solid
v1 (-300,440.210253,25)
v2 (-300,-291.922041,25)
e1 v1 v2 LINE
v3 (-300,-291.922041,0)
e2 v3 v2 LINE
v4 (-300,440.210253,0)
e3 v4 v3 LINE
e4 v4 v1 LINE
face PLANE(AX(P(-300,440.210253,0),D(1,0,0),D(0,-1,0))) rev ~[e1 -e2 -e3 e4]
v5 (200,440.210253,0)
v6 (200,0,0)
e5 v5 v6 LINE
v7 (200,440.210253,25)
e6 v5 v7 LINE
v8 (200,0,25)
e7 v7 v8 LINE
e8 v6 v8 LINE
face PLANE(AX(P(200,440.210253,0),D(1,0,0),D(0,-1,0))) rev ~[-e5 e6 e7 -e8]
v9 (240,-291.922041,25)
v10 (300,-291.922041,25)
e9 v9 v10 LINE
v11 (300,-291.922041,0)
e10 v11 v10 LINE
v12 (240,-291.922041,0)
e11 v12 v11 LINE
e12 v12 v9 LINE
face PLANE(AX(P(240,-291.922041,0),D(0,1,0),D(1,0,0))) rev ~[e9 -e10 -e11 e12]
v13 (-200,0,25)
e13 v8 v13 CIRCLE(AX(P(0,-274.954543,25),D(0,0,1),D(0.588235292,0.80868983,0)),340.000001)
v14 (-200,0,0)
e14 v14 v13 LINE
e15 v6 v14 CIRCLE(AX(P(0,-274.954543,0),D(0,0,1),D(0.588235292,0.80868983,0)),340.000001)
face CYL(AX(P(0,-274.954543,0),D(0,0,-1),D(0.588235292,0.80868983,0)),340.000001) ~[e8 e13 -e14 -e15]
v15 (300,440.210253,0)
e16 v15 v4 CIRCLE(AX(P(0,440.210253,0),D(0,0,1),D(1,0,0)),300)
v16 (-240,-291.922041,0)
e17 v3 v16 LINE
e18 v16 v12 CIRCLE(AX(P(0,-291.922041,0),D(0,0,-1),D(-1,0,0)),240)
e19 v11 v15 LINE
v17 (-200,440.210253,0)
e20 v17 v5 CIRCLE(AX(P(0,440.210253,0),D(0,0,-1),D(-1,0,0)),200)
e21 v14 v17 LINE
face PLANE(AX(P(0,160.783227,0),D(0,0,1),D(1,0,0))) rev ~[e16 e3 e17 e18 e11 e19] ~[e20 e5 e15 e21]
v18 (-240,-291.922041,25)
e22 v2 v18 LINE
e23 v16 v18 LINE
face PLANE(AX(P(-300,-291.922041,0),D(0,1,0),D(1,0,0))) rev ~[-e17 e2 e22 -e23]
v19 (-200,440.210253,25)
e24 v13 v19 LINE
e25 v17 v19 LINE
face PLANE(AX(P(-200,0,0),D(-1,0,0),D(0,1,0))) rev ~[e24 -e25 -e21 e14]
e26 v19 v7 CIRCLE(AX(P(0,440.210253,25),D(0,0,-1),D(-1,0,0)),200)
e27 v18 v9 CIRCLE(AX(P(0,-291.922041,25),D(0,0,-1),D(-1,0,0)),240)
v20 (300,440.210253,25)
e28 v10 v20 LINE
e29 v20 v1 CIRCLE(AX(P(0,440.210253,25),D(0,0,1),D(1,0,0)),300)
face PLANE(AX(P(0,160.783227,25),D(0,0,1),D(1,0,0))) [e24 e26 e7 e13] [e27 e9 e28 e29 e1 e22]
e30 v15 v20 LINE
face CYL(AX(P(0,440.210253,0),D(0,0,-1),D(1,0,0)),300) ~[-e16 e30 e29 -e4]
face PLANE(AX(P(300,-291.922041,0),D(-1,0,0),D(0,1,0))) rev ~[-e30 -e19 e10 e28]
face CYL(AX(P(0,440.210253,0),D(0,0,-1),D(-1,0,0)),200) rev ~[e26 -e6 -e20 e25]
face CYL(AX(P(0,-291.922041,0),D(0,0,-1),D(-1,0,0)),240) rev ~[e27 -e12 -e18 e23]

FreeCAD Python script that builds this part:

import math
import FreeCAD as App
import Part
import Sketcher

doc = App.newDocument("Part")
body = doc.addObject("PartDesign::Body", "Body")

# Sketch on XY plane
sketch1 = body.newObject("Sketcher::SketchObject", "Sketch")
sketch1.AttachmentSupport = (doc.getObject("XY_Plane"), [""])
sketch1.MapMode = "FlatFace"
sketch1.addGeometry([
    Part.LineSegment(App.Vector(-300, 440.210253, 0), App.Vector(-300, -291.922041, 0)),  # 0
    Part.LineSegment(App.Vector(-300, -291.922041, 0), App.Vector(-240, -291.922041, 0)),  # 1
    Part.ArcOfCircle(Part.Circle(App.Vector(0, -291.922041, 0), App.Vector(0, 0, 1), 240), math.radians(0), math.radians(180)),  # 2
    Part.LineSegment(App.Vector(240, -291.922041, 0), App.Vector(300, -291.922041, 0)),  # 3
    Part.LineSegment(App.Vector(300, -291.922041, 0), App.Vector(300, 440.210253, 0)),  # 4
    Part.ArcOfCircle(Part.Circle(App.Vector(0, 440.210253, 0), App.Vector(0, 0, 1), 300), math.radians(0), math.radians(180)),  # 5
    Part.LineSegment(App.Vector(200, 440.210253, 0), App.Vector(200, 0, 0)),  # 6
    Part.ArcOfCircle(Part.Circle(App.Vector(0, -274.954543, 0), App.Vector(0, 0, 1), 340.000001), math.radians(53.968121), math.radians(126.031879)),  # 7
    Part.LineSegment(App.Vector(-200, 0, 0), App.Vector(-200, 440.210253, 0)),  # 8
    Part.ArcOfCircle(Part.Circle(App.Vector(0, 440.210253, 0), App.Vector(0, 0, 1), 200), math.radians(0), math.radians(180)),  # 9
], False)
sketch1.addConstraint([
    Sketcher.Constraint("Coincident", 0, 2, 1, 1),
    Sketcher.Constraint("Coincident", 1, 2, 2, 2),
    Sketcher.Constraint("Coincident", 2, 1, 3, 1),
    Sketcher.Constraint("Coincident", 3, 2, 4, 1),
    Sketcher.Constraint("Tangent", 4, 2, 5, 1),
    Sketcher.Constraint("Tangent", 5, 2, 0, 1),
    Sketcher.Constraint("Coincident", 6, 2, 7, 1),
    Sketcher.Constraint("Coincident", 7, 2, 8, 1),
    Sketcher.Constraint("Tangent", 8, 2, 9, 2),
    Sketcher.Constraint("Tangent", 9, 1, 6, 1),
    Sketcher.Constraint("Vertical", 0),
    Sketcher.Constraint("Horizontal", 1),
    Sketcher.Constraint("Horizontal", 3),
    Sketcher.Constraint("Vertical", 4),
    Sketcher.Constraint("Vertical", 6),
    Sketcher.Constraint("Vertical", 8),
    Sketcher.Constraint("Coincident", 9, 3, 5, 3),
    Sketcher.Constraint("Symmetric", 6, 2, 7, 2, -1, 1),
    Sketcher.Constraint("Symmetric", 1, 2, 2, 1, -2),
    Sketcher.Constraint("PointOnObject", 7, 3, -2),
    Sketcher.Constraint("Horizontal", 2, 3, 0, 2),
    Sketcher.Constraint("Radius", 2, 240.0),
    Sketcher.Constraint("Radius", 5, 300.0),
    Sketcher.Constraint("Radius", 7, 340.000001),
    Sketcher.Constraint("Radius", 9, 200.0),
    Sketcher.Constraint("DistanceY", 0, 2, 0, 1, 732.132294),
    Sketcher.Constraint("DistanceY", 6, 2, 6, 1, 440.210253),
])
pad1 = body.newObject("PartDesign::Pad", "Pad")
pad1.Profile = sketch1
pad1.Length = 25

doc.recompute()
